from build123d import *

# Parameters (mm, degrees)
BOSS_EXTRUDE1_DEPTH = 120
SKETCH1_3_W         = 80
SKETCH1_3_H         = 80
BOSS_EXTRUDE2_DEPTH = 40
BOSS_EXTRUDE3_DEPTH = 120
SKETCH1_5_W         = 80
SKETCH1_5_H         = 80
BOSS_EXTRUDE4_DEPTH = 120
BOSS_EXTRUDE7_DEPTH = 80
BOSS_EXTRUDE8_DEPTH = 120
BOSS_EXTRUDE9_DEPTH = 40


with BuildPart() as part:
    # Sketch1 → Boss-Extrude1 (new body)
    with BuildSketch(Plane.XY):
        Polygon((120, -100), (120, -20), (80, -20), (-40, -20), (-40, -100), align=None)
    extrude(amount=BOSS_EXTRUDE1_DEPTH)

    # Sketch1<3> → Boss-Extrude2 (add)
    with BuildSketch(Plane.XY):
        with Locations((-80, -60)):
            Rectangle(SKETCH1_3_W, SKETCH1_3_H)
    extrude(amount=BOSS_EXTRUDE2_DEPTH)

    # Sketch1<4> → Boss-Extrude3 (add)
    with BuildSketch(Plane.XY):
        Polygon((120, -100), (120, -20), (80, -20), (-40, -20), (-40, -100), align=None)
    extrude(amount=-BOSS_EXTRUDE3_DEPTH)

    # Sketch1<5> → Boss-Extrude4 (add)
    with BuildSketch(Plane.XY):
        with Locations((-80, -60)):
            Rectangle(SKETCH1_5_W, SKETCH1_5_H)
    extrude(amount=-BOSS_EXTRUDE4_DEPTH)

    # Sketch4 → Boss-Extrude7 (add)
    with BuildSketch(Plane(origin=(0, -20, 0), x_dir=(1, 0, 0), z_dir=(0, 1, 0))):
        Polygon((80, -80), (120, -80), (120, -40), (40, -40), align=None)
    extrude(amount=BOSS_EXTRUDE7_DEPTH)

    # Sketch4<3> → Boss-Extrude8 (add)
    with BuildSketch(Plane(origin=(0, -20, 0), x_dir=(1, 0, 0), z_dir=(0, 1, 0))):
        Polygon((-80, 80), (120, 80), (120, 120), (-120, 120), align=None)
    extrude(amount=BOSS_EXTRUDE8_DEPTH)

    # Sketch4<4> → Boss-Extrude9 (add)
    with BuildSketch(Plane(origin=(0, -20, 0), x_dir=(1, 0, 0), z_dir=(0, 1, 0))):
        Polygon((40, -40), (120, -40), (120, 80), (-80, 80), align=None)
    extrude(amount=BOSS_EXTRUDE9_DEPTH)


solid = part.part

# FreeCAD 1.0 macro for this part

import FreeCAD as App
import Part
import Sketcher


def add_polygon(sketch, points):
    """Adds a closed chain of lines whose ends are joined by coincident constraints."""
    first, n = sketch.GeometryCount, len(points)
    for a, b in zip(points, points[1:] + points[:1]):
        sketch.addGeometry(Part.LineSegment(App.Vector(*a, 0), App.Vector(*b, 0)), False)
    for i in range(n):
        sketch.addConstraint(Sketcher.Constraint("Coincident", first + i, 2, first + (i + 1) % n, 1))

doc = App.newDocument("Part")
params = doc.addObject("Spreadsheet::Sheet", "Params")
for row, (alias, value) in enumerate([
    ("sketch1_width", "160 mm"),
    ("sketch1_height", "80 mm"),
    ("pad1_length", "120 mm"),
    ("sketch2_width", "80 mm"),
    ("pad2_length", "40 mm"),
    ("sketch3_width", "160 mm"),
    ("sketch3_height", "80 mm"),
    ("pad3_length", "120 mm"),
    ("sketch4_width", "80 mm"),
    ("pad4_length", "120 mm"),
    ("sketch5_width", "40 mm"),
    ("sketch5_width2", "80 mm"),
    ("pad5_length", "80 mm"),
    ("sketch6_width", "200 mm"),
    ("sketch6_width2", "240 mm"),
    ("sketch6_height", "40 mm"),
    ("pad6_length", "120 mm"),
    ("sketch7_width", "80 mm"),
    ("sketch7_width2", "200 mm"),
    ("sketch7_height", "120 mm"),
    ("pad7_length", "40 mm"),
], start=1):
    params.set(f"A{row}", alias)
    params.set(f"B{row}", "=" + value)
    params.setAlias(f"B{row}", alias)

body = doc.addObject("PartDesign::Body", "Body")

sketch1 = doc.addObject("Sketcher::SketchObject", "Sketch")
body.addObject(sketch1)
sketch1.AttachmentSupport = (doc.XY_Plane, [""])
sketch1.MapMode = "FlatFace"
add_polygon(sketch1, [(120, -100), (120, -20), (-40, -20), (-40, -100)])
sketch1.addConstraint([
    Sketcher.Constraint("Vertical", 0),
    Sketcher.Constraint("Horizontal", 1),
    Sketcher.Constraint("Vertical", 2),
    Sketcher.Constraint("Horizontal", 3),
    Sketcher.Constraint("DistanceX", 1, 2, 1, 1, 160.0),
    Sketcher.Constraint("DistanceY", 0, 1, 0, 2, 80.0),
    Sketcher.Constraint("DistanceX", -1, 1, 0, 2, 120.0),
    Sketcher.Constraint("DistanceY", 0, 2, -1, 1, 20.0),
])
sketch1.setExpression("Constraints[8]", "Params.sketch1_width")
sketch1.setExpression("Constraints[9]", "Params.sketch1_height")
pad1 = doc.addObject("PartDesign::Pad", "Pad")
body.addObject(pad1)
pad1.Profile = sketch1
pad1.setExpression("Length", "Params.pad1_length")

sketch2 = doc.addObject("Sketcher::SketchObject", "Sketch001")
body.addObject(sketch2)
sketch2.AttachmentSupport = (doc.XY_Plane, [""])
sketch2.MapMode = "FlatFace"
add_polygon(sketch2, [(-120, -20), (-120, -100), (-40, -100), (-40, -20)])
sketch2.addConstraint([
    Sketcher.Constraint("Vertical", 0),
    Sketcher.Constraint("Horizontal", 1),
    Sketcher.Constraint("Vertical", 2),
    Sketcher.Constraint("Horizontal", 3),
    Sketcher.Constraint("Equal", 3, 0),
    Sketcher.Constraint("DistanceX", 1, 1, 1, 2, 80.0),
    Sketcher.Constraint("DistanceX", 0, 2, -1, 1, 120.0),
    Sketcher.Constraint("DistanceY", 0, 2, -1, 1, 100.0),
])
sketch2.setExpression("Constraints[9]", "Params.sketch2_width")
pad2 = doc.addObject("PartDesign::Pad", "Pad001")
body.addObject(pad2)
pad2.Profile = sketch2
pad2.setExpression("Length", "Params.pad2_length")

sketch3 = doc.addObject("Sketcher::SketchObject", "Sketch002")
body.addObject(sketch3)
sketch3.AttachmentSupport = (doc.XY_Plane, [""])
sketch3.MapMode = "FlatFace"
add_polygon(sketch3, [(120, -100), (120, -20), (-40, -20), (-40, -100)])
sketch3.addConstraint([
    Sketcher.Constraint("Vertical", 0),
    Sketcher.Constraint("Horizontal", 1),
    Sketcher.Constraint("Vertical", 2),
    Sketcher.Constraint("Horizontal", 3),
    Sketcher.Constraint("DistanceX", 1, 2, 1, 1, 160.0),
    Sketcher.Constraint("DistanceY", 0, 1, 0, 2, 80.0),
    Sketcher.Constraint("DistanceX", -1, 1, 0, 2, 120.0),
    Sketcher.Constraint("DistanceY", 0, 2, -1, 1, 20.0),
])
sketch3.setExpression("Constraints[8]", "Params.sketch3_width")
sketch3.setExpression("Constraints[9]", "Params.sketch3_height")
pad3 = doc.addObject("PartDesign::Pad", "Pad002")
body.addObject(pad3)
pad3.Profile = sketch3
pad3.setExpression("Length", "Params.pad3_length")
pad3.Reversed = True

sketch4 = doc.addObject("Sketcher::SketchObject", "Sketch003")
body.addObject(sketch4)
sketch4.AttachmentSupport = (doc.XY_Plane, [""])
sketch4.MapMode = "FlatFace"
add_polygon(sketch4, [(-120, -20), (-120, -100), (-40, -100), (-40, -20)])
sketch4.addConstraint([
    Sketcher.Constraint("Vertical", 0),
    Sketcher.Constraint("Horizontal", 1),
    Sketcher.Constraint("Vertical", 2),
    Sketcher.Constraint("Horizontal", 3),
    Sketcher.Constraint("Equal", 3, 0),
    Sketcher.Constraint("DistanceX", 1, 1, 1, 2, 80.0),
    Sketcher.Constraint("DistanceX", 0, 2, -1, 1, 120.0),
    Sketcher.Constraint("DistanceY", 0, 2, -1, 1, 100.0),
])
sketch4.setExpression("Constraints[9]", "Params.sketch4_width")
pad4 = doc.addObject("PartDesign::Pad", "Pad003")
body.addObject(pad4)
pad4.Profile = sketch4
pad4.setExpression("Length", "Params.pad4_length")
pad4.Reversed = True

sketch5 = doc.addObject("Sketcher::SketchObject", "Sketch004")
body.addObject(sketch5)
sketch5.AttachmentSupport = (doc.XZ_Plane, [""])
sketch5.MapMode = "FlatFace"
sketch5.AttachmentOffset = App.Placement(App.Vector(0, 0, 20), App.Rotation())
add_polygon(sketch5, [(80, 80), (120, 80), (120, 40), (40, 40)])
sketch5.addConstraint([
    Sketcher.Constraint("Horizontal", 0),
    Sketcher.Constraint("Vertical", 1),
    Sketcher.Constraint("Horizontal", 2),
    Sketcher.Constraint("Equal", 0, 1),
    Sketcher.Constraint("DistanceX", 0, 1, 0, 2, 40.0),
    Sketcher.Constraint("DistanceX", 2, 2, 2, 1, 80.0),
    Sketcher.Constraint("DistanceX", -1, 1, 0, 2, 120.0),
    Sketcher.Constraint("DistanceY", -1, 1, 0, 2, 80.0),
])
sketch5.setExpression("Constraints[8]", "Params.sketch5_width")
sketch5.setExpression("Constraints[9]", "Params.sketch5_width2")
pad5 = doc.addObject("PartDesign::Pad", "Pad004")
body.addObject(pad5)
pad5.Profile = sketch5
pad5.setExpression("Length", "Params.pad5_length")
pad5.Reversed = True

sketch6 = doc.addObject("Sketcher::SketchObject", "Sketch005")
body.addObject(sketch6)
sketch6.AttachmentSupport = (doc.XZ_Plane, [""])
sketch6.MapMode = "FlatFace"
sketch6.AttachmentOffset = App.Placement(App.Vector(0, 0, 20), App.Rotation())
add_polygon(sketch6, [(-80, -80), (120, -80), (120, -120), (-120, -120)])
sketch6.addConstraint([
    Sketcher.Constraint("Horizontal", 0),
    Sketcher.Constraint("Vertical", 1),
    Sketcher.Constraint("Horizontal", 2),
    Sketcher.Constraint("DistanceX", 0, 1, 0, 2, 200.0),
    Sketcher.Constraint("DistanceX", 2, 2, 2, 1, 240.0),
    Sketcher.Constraint("DistanceY", 1, 2, 1, 1, 40.0),
    Sketcher.Constraint("DistanceX", -1, 1, 0, 2, 120.0),
    Sketcher.Constraint("DistanceY", 0, 2, -1, 1, 80.0),
])
sketch6.setExpression("Constraints[7]", "Params.sketch6_width")
sketch6.setExpression("Constraints[8]", "Params.sketch6_width2")
sketch6.setExpression("Constraints[9]", "Params.sketch6_height")
pad6 = doc.addObject("PartDesign::Pad", "Pad005")
body.addObject(pad6)
pad6.Profile = sketch6
pad6.setExpression("Length", "Params.pad6_length")
pad6.Reversed = True

sketch7 = doc.addObject("Sketcher::SketchObject", "Sketch006")
body.addObject(sketch7)
sketch7.AttachmentSupport = (doc.XZ_Plane, [""])
sketch7.MapMode = "FlatFace"
sketch7.AttachmentOffset = App.Placement(App.Vector(0, 0, 20), App.Rotation())
add_polygon(sketch7, [(40, 40), (120, 40), (120, -80), (-80, -80)])
sketch7.addConstraint([
    Sketcher.Constraint("Horizontal", 0),
    Sketcher.Constraint("Vertical", 1),
    Sketcher.Constraint("Horizontal", 2),
    Sketcher.Constraint("DistanceX", 0, 1, 0, 2, 80.0),
    Sketcher.Constraint("DistanceX", 2, 2, 2, 1, 200.0),
    Sketcher.Constraint("DistanceY", 1, 2, 1, 1, 120.0),
    Sketcher.Constraint("DistanceX", -1, 1, 0, 2, 120.0),
    Sketcher.Constraint("DistanceY", -1, 1, 0, 2, 40.0),
])
sketch7.setExpression("Constraints[7]", "Params.sketch7_width")
sketch7.setExpression("Constraints[8]", "Params.sketch7_width2")
sketch7.setExpression("Constraints[9]", "Params.sketch7_height")
pad7 = doc.addObject("PartDesign::Pad", "Pad006")
body.addObject(pad7)
pad7.Profile = sketch7
pad7.setExpression("Length", "Params.pad7_length")
pad7.Reversed = True

doc.recompute()
